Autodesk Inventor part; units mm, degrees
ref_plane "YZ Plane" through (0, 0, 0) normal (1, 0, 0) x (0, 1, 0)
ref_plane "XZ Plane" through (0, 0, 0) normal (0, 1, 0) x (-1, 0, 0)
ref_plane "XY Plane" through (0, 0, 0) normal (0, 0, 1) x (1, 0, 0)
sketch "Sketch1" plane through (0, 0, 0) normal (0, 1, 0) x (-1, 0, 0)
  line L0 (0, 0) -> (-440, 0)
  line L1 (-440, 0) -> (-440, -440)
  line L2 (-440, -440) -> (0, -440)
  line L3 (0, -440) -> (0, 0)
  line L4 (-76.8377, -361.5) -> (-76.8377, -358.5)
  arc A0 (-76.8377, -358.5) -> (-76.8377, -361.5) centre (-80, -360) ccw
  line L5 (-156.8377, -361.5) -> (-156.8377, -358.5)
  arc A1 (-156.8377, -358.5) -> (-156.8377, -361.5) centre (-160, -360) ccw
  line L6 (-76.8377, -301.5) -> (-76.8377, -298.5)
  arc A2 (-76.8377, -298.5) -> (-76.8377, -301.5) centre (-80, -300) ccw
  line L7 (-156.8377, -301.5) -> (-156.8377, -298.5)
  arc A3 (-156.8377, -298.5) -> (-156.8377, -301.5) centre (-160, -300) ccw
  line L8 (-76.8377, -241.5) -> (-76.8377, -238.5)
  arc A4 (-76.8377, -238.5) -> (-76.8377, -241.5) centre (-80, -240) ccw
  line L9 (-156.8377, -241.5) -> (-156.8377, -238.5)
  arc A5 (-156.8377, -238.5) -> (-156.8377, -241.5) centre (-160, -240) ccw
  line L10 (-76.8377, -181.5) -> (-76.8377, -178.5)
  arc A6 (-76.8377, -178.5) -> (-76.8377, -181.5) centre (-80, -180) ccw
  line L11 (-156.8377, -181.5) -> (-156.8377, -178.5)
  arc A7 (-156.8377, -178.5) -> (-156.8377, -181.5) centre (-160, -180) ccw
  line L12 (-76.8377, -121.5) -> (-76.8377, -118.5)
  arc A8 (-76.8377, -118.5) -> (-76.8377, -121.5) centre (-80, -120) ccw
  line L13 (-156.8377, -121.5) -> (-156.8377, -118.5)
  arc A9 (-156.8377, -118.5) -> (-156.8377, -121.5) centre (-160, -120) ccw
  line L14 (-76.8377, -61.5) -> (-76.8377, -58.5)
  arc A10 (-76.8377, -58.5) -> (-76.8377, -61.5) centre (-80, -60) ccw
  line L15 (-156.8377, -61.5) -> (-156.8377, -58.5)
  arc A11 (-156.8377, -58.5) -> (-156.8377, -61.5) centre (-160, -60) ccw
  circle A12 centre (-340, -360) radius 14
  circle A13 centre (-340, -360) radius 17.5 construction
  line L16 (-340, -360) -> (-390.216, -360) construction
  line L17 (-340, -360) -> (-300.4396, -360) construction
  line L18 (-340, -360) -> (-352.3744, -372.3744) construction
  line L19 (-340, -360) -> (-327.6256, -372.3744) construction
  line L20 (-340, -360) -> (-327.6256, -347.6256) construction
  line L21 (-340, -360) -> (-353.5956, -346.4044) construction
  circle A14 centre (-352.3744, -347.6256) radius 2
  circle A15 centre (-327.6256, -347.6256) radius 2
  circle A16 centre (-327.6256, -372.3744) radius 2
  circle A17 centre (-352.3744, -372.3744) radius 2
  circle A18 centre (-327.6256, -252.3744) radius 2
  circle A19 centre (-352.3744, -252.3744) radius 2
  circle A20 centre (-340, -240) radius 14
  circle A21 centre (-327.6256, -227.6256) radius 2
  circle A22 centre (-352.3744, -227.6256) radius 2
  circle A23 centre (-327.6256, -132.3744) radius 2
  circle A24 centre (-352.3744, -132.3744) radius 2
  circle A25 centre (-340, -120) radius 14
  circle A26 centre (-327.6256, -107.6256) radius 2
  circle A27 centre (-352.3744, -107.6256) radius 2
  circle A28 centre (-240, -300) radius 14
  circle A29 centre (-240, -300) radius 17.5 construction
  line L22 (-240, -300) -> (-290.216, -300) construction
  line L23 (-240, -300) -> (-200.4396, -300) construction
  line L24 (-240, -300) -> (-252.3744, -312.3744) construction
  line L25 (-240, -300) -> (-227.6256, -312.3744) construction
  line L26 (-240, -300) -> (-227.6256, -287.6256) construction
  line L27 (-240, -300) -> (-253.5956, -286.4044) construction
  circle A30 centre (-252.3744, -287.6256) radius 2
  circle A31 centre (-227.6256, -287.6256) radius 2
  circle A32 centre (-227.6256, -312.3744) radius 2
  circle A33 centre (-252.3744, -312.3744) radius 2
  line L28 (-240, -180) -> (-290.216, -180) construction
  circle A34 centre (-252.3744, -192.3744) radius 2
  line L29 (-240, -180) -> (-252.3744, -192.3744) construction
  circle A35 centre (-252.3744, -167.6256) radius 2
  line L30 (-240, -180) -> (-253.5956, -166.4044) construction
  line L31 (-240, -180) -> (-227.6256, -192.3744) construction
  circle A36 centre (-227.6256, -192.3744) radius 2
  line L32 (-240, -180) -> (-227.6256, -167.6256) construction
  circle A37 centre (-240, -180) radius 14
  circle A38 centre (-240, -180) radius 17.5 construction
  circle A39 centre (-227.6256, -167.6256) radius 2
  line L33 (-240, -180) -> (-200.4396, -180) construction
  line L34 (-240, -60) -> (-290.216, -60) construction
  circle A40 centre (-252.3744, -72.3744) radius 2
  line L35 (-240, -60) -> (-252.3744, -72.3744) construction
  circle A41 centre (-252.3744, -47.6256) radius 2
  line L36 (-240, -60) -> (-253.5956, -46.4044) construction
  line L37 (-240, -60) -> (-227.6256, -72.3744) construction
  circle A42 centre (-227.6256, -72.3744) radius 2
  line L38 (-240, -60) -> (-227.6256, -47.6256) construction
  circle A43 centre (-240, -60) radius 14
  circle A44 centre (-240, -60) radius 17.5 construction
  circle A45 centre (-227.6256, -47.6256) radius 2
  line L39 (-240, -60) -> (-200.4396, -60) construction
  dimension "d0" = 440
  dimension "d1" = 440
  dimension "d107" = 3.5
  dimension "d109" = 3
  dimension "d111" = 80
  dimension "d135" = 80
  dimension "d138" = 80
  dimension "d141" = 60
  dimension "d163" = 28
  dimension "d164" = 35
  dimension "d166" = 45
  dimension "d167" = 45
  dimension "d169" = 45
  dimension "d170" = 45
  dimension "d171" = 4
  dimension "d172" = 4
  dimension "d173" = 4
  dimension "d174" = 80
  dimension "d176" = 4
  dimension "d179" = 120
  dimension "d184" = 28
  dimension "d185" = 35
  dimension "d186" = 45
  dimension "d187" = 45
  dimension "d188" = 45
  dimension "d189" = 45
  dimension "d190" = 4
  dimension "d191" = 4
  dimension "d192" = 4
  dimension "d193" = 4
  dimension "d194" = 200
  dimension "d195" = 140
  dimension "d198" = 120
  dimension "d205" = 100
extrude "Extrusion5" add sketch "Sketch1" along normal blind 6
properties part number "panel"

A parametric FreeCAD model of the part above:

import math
import FreeCAD as App
import Part
import Sketcher
Q = App.Units.Quantity

doc = App.newDocument("Part")
body = doc.addObject("PartDesign::Body", "Body")

sketch1 = body.newObject("Sketcher::SketchObject", "Sketch")
sketch1.AttachmentSupport = (doc.getObject("XZ_Plane"), [""])
sketch1.MapMode = "FlatFace"
sketch1.addGeometry([
    Part.LineSegment(App.Vector(0, -440, 0), App.Vector(0, 0, 0)),
    Part.LineSegment(App.Vector(0, 0, 0), App.Vector(440, 0, 0)),
    Part.LineSegment(App.Vector(440, 0, 0), App.Vector(440, -440, 0)),
    Part.LineSegment(App.Vector(440, -440, 0), App.Vector(0, -440, 0)),
    Part.Circle(App.Vector(352.4, -372.4, 0), App.Vector(0, 0, 1), 2),
    Part.Circle(App.Vector(340, -360, 0), App.Vector(0, 0, 1), 14),
    Part.Circle(App.Vector(352.4, -347.6, 0), App.Vector(0, 0, 1), 2),
    Part.Circle(App.Vector(327.6, -372.4, 0), App.Vector(0, 0, 1), 2),
    Part.Circle(App.Vector(327.6, -347.6, 0), App.Vector(0, 0, 1), 2),
    Part.Circle(App.Vector(352.4, -252.4, 0), App.Vector(0, 0, 1), 2),
    Part.Circle(App.Vector(340, -240, 0), App.Vector(0, 0, 1), 14),
    Part.Circle(App.Vector(352.4, -227.6, 0), App.Vector(0, 0, 1), 2),
    Part.Circle(App.Vector(252.4, -312.4, 0), App.Vector(0, 0, 1), 2),
    Part.Circle(App.Vector(227.6, -312.4, 0), App.Vector(0, 0, 1), 2),
    Part.Circle(App.Vector(252.4, -287.6, 0), App.Vector(0, 0, 1), 2),
    Part.Circle(App.Vector(240, -300, 0), App.Vector(0, 0, 1), 14),
    Part.Circle(App.Vector(227.6, -287.6, 0), App.Vector(0, 0, 1), 2),
    Part.Circle(App.Vector(327.6, -252.4, 0), App.Vector(0, 0, 1), 2),
    Part.Circle(App.Vector(327.6, -227.6, 0), App.Vector(0, 0, 1), 2),
    Part.LineSegment(App.Vector(156.8, -358.5, 0), App.Vector(156.8, -361.5, 0)),
    Part.ArcOfCircle(Part.Circle(App.Vector(160, -360, 0), App.Vector(0, 0, 1), 3.5), math.radians(-155), math.radians(155)),
    Part.LineSegment(App.Vector(76.8, -358.5, 0), App.Vector(76.8, -361.5, 0)),
    Part.ArcOfCircle(Part.Circle(App.Vector(80, -360, 0), App.Vector(0, 0, 1), 3.5), math.radians(-155), math.radians(155)),
    Part.LineSegment(App.Vector(156.8, -298.5, 0), App.Vector(156.8, -301.5, 0)),
    Part.ArcOfCircle(Part.Circle(App.Vector(160, -300, 0), App.Vector(0, 0, 1), 3.5), math.radians(-155), math.radians(155)),
    Part.LineSegment(App.Vector(156.8, -238.5, 0), App.Vector(156.8, -241.5, 0)),
    Part.ArcOfCircle(Part.Circle(App.Vector(160, -240, 0), App.Vector(0, 0, 1), 3.5), math.radians(-155), math.radians(155)),
    Part.LineSegment(App.Vector(76.8, -298.5, 0), App.Vector(76.8, -301.5, 0)),
    Part.ArcOfCircle(Part.Circle(App.Vector(80, -300, 0), App.Vector(0, 0, 1), 3.5), math.radians(-155), math.radians(155)),
    Part.LineSegment(App.Vector(76.8, -238.5, 0), App.Vector(76.8, -241.5, 0)),
    Part.ArcOfCircle(Part.Circle(App.Vector(80, -240, 0), App.Vector(0, 0, 1), 3.5), math.radians(-155), math.radians(155)),
    Part.Circle(App.Vector(352.4, -132.4, 0), App.Vector(0, 0, 1), 2),
    Part.Circle(App.Vector(340, -120, 0), App.Vector(0, 0, 1), 14),
    Part.Circle(App.Vector(252.4, -192.4, 0), App.Vector(0, 0, 1), 2),
    Part.Circle(App.Vector(252.4, -167.6, 0), App.Vector(0, 0, 1), 2),
    Part.Circle(App.Vector(240, -180, 0), App.Vector(0, 0, 1), 14),
    Part.Circle(App.Vector(227.6, -192.4, 0), App.Vector(0, 0, 1), 2),
    Part.Circle(App.Vector(227.6, -167.6, 0), App.Vector(0, 0, 1), 2),
    Part.Circle(App.Vector(327.6, -132.4, 0), App.Vector(0, 0, 1), 2),
    Part.Circle(App.Vector(352.4, -107.6, 0), App.Vector(0, 0, 1), 2),
    Part.Circle(App.Vector(327.6, -107.6, 0), App.Vector(0, 0, 1), 2),
    Part.Circle(App.Vector(252.4, -72.4, 0), App.Vector(0, 0, 1), 2),
    Part.Circle(App.Vector(227.6, -72.4, 0), App.Vector(0, 0, 1), 2),
    Part.Circle(App.Vector(240, -60, 0), App.Vector(0, 0, 1), 14),
    Part.Circle(App.Vector(252.4, -47.6, 0), App.Vector(0, 0, 1), 2),
    Part.Circle(App.Vector(227.6, -47.6, 0), App.Vector(0, 0, 1), 2),
    Part.LineSegment(App.Vector(156.8, -178.5, 0), App.Vector(156.8, -181.5, 0)),
    Part.ArcOfCircle(Part.Circle(App.Vector(160, -180, 0), App.Vector(0, 0, 1), 3.5), math.radians(-155), math.radians(155)),
    Part.LineSegment(App.Vector(156.8, -118.5, 0), App.Vector(156.8, -121.5, 0)),
    Part.ArcOfCircle(Part.Circle(App.Vector(160, -120, 0), App.Vector(0, 0, 1), 3.5), math.radians(-155), math.radians(155)),
    Part.LineSegment(App.Vector(76.8, -178.5, 0), App.Vector(76.8, -181.5, 0)),
    Part.ArcOfCircle(Part.Circle(App.Vector(80, -180, 0), App.Vector(0, 0, 1), 3.5), math.radians(-155), math.radians(155)),
    Part.LineSegment(App.Vector(76.8, -118.5, 0), App.Vector(76.8, -121.5, 0)),
    Part.ArcOfCircle(Part.Circle(App.Vector(80, -120, 0), App.Vector(0, 0, 1), 3.5), math.radians(-155), math.radians(155)),
    Part.LineSegment(App.Vector(156.8, -58.5, 0), App.Vector(156.8, -61.5, 0)),
    Part.ArcOfCircle(Part.Circle(App.Vector(160, -60, 0), App.Vector(0, 0, 1), 3.5), math.radians(-155), math.radians(155)),
    Part.LineSegment(App.Vector(76.8, -58.5, 0), App.Vector(76.8, -61.5, 0)),
    Part.ArcOfCircle(Part.Circle(App.Vector(80, -60, 0), App.Vector(0, 0, 1), 3.5), math.radians(-155), math.radians(155)),
], False)
sketch1.addConstraint([
    Sketcher.Constraint("Coincident", 0, 2, 1, 1),
    Sketcher.Constraint("Coincident", 1, 2, 2, 1),
    Sketcher.Constraint("Coincident", 2, 2, 3, 1),
    Sketcher.Constraint("Coincident", 3, 2, 0, 1),
    Sketcher.Constraint("Coincident", 19, 1, 20, 2),
    Sketcher.Constraint("Coincident", 20, 1, 19, 2),
    Sketcher.Constraint("Coincident", 21, 1, 22, 2),
    Sketcher.Constraint("Coincident", 22, 1, 21, 2),
    Sketcher.Constraint("Coincident", 23, 1, 24, 2),
    Sketcher.Constraint("Coincident", 24, 1, 23, 2),
    Sketcher.Constraint("Coincident", 25, 1, 26, 2),
    Sketcher.Constraint("Coincident", 26, 1, 25, 2),
    Sketcher.Constraint("Coincident", 27, 1, 28, 2),
    Sketcher.Constraint("Coincident", 28, 1, 27, 2),
    Sketcher.Constraint("Coincident", 29, 1, 30, 2),
    Sketcher.Constraint("Coincident", 30, 1, 29, 2),
    Sketcher.Constraint("Coincident", 46, 1, 47, 2),
    Sketcher.Constraint("Coincident", 47, 1, 46, 2),
    Sketcher.Constraint("Coincident", 48, 1, 49, 2),
    Sketcher.Constraint("Coincident", 49, 1, 48, 2),
    Sketcher.Constraint("Coincident", 50, 1, 51, 2),
    Sketcher.Constraint("Coincident", 51, 1, 50, 2),
    Sketcher.Constraint("Coincident", 52, 1, 53, 2),
    Sketcher.Constraint("Coincident", 53, 1, 52, 2),
    Sketcher.Constraint("Coincident", 54, 1, 55, 2),
    Sketcher.Constraint("Coincident", 55, 1, 54, 2),
    Sketcher.Constraint("Coincident", 56, 1, 57, 2),
    Sketcher.Constraint("Coincident", 57, 1, 56, 2),
    Sketcher.Constraint("Vertical", 0),
    Sketcher.Constraint("Horizontal", 1),
    Sketcher.Constraint("Vertical", 2),
    Sketcher.Constraint("Horizontal", 3),
    Sketcher.Constraint("Vertical", 19),
    Sketcher.Constraint("Vertical", 21),
    Sketcher.Constraint("Vertical", 23),
    Sketcher.Constraint("Vertical", 25),
    Sketcher.Constraint("Vertical", 27),
    Sketcher.Constraint("Vertical", 29),
    Sketcher.Constraint("Vertical", 46),
    Sketcher.Constraint("Vertical", 48),
    Sketcher.Constraint("Vertical", 50),
    Sketcher.Constraint("Vertical", 52),
    Sketcher.Constraint("Vertical", 54),
    Sketcher.Constraint("Vertical", 56),
    Sketcher.Constraint("Coincident", 0, 2, -1, 1),
    Sketcher.Constraint("Equal", 4, 6),
    Sketcher.Constraint("Equal", 6, 7),
    Sketcher.Constraint("Equal", 7, 8),
    Sketcher.Constraint("Equal", 8, 9),
    Sketcher.Constraint("Equal", 5, 10),
    Sketcher.Constraint("Equal", 9, 11),
    Sketcher.Constraint("Equal", 11, 12),
    Sketcher.Constraint("Equal", 12, 13),
    Sketcher.Constraint("Equal", 13, 14),
    Sketcher.Constraint("Equal", 10, 15),
    Sketcher.Constraint("Equal", 14, 16),
    Sketcher.Constraint("Equal", 16, 17),
    Sketcher.Constraint("Equal", 17, 18),
    Sketcher.Constraint("Equal", 20, 22),
    Sketcher.Constraint("Equal", 22, 24),
    Sketcher.Constraint("Equal", 24, 26),
    Sketcher.Constraint("Equal", 26, 28),
    Sketcher.Constraint("Equal", 28, 30),
    Sketcher.Constraint("Equal", 18, 31),
    Sketcher.Constraint("Equal", 15, 32),
    Sketcher.Constraint("Equal", 31, 33),
    Sketcher.Constraint("Equal", 33, 34),
    Sketcher.Constraint("Equal", 32, 35),
    Sketcher.Constraint("Equal", 34, 36),
    Sketcher.Constraint("Equal", 36, 37),
    Sketcher.Constraint("Equal", 37, 38),
    Sketcher.Constraint("Equal", 38, 39),
    Sketcher.Constraint("Equal", 39, 40),
    Sketcher.Constraint("Equal", 40, 41),
    Sketcher.Constraint("Equal", 41, 42),
    Sketcher.Constraint("Equal", 35, 43),
    Sketcher.Constraint("Equal", 42, 44),
    Sketcher.Constraint("Equal", 44, 45),
    Sketcher.Constraint("Equal", 30, 47),
    Sketcher.Constraint("Equal", 47, 49),
    Sketcher.Constraint("Equal", 49, 51),
    Sketcher.Constraint("Equal", 51, 53),
    Sketcher.Constraint("Equal", 53, 55),
    Sketcher.Constraint("Equal", 55, 57),
    Sketcher.Constraint("Horizontal", 4, 3, 7, 3),
    Sketcher.Constraint("Horizontal", 6, 3, 8, 3),
    Sketcher.Constraint("Horizontal", 12, 3, 13, 3),
    Sketcher.Constraint("Horizontal", 14, 3, 16, 3),
    Sketcher.Constraint("Horizontal", 9, 3, 17, 3),
    Sketcher.Constraint("Horizontal", 11, 3, 18, 3),
    Sketcher.Constraint("Horizontal", 5, 3, 20, 3),
    Sketcher.Constraint("Horizontal", 20, 3, 22, 3),
    Sketcher.Constraint("Horizontal", 15, 3, 24, 3),
    Sketcher.Constraint("Horizontal", 10, 3, 26, 3),
    Sketcher.Constraint("Horizontal", 24, 3, 28, 3),
    Sketcher.Constraint("Horizontal", 26, 3, 30, 3),
    Sketcher.Constraint("Horizontal", 33, 3, 36, 3),
    Sketcher.Constraint("Horizontal", 34, 3, 37, 3),
    Sketcher.Constraint("Horizontal", 31, 3, 38, 3),
    Sketcher.Constraint("Horizontal", 39, 3, 40, 3),
    Sketcher.Constraint("Horizontal", 41, 3, 42, 3),
    Sketcher.Constraint("Horizontal", 44, 3, 45, 3),
    Sketcher.Constraint("Horizontal", 35, 3, 47, 3),
    Sketcher.Constraint("Horizontal", 32, 3, 49, 3),
    Sketcher.Constraint("Horizontal", 47, 3, 51, 3),
    Sketcher.Constraint("Horizontal", 49, 3, 53, 3),
    Sketcher.Constraint("Horizontal", 43, 3, 55, 3),
    Sketcher.Constraint("Horizontal", 55, 3, 57, 3),
    Sketcher.Constraint("Horizontal", 19, 1, 21, 1),
    Sketcher.Constraint("Horizontal", 23, 1, 27, 1),
    Sketcher.Constraint("Horizontal", 25, 1, 29, 1),
    Sketcher.Constraint("Horizontal", 46, 1, 50, 1),
    Sketcher.Constraint("Horizontal", 48, 1, 52, 1),
    Sketcher.Constraint("Horizontal", 54, 1, 56, 1),
    Sketcher.Constraint("Vertical", 4, 3, 6, 3),
    Sketcher.Constraint("Vertical", 7, 3, 8, 3),
    Sketcher.Constraint("Vertical", 6, 3, 9, 3),
    Sketcher.Constraint("Vertical", 5, 3, 10, 3),
    Sketcher.Constraint("Vertical", 9, 3, 11, 3),
    Sketcher.Constraint("Vertical", 12, 3, 14, 3),
    Sketcher.Constraint("Vertical", 13, 3, 16, 3),
    Sketcher.Constraint("Vertical", 8, 3, 17, 3),
    Sketcher.Constraint("Vertical", 17, 3, 18, 3),
    Sketcher.Constraint("Vertical", 20, 3, 24, 3),
    Sketcher.Constraint("Vertical", 24, 3, 26, 3),
    Sketcher.Constraint("Vertical", 22, 3, 28, 3),
    Sketcher.Constraint("Vertical", 28, 3, 30, 3),
    Sketcher.Constraint("Vertical", 11, 3, 31, 3),
    Sketcher.Constraint("Vertical", 10, 3, 32, 3),
    Sketcher.Constraint("Vertical", 14, 3, 33, 3),
    Sketcher.Constraint("Vertical", 33, 3, 34, 3),
    Sketcher.Constraint("Vertical", 15, 3, 35, 3),
    Sketcher.Constraint("Vertical", 16, 3, 36, 3),
    Sketcher.Constraint("Vertical", 36, 3, 37, 3),
    Sketcher.Constraint("Vertical", 18, 3, 38, 3),
    Sketcher.Constraint("Vertical", 31, 3, 39, 3),
    Sketcher.Constraint("Vertical", 38, 3, 40, 3),
    Sketcher.Constraint("Vertical", 34, 3, 41, 3),
    Sketcher.Constraint("Vertical", 37, 3, 42, 3),
    Sketcher.Constraint("Vertical", 35, 3, 43, 3),
    Sketcher.Constraint("Vertical", 41, 3, 44, 3),
    Sketcher.Constraint("Vertical", 42, 3, 45, 3),
    Sketcher.Constraint("Vertical", 26, 3, 47, 3),
    Sketcher.Constraint("Vertical", 47, 3, 49, 3),
    Sketcher.Constraint("Vertical", 30, 3, 51, 3),
    Sketcher.Constraint("Vertical", 51, 3, 53, 3),
    Sketcher.Constraint("Vertical", 49, 3, 55, 3),
    Sketcher.Constraint("Vertical", 53, 3, 57, 3),
    Sketcher.Constraint("Vertical", 20, 1, 23, 1),
    Sketcher.Constraint("Vertical", 24, 1, 25, 1),
    Sketcher.Constraint("Vertical", 26, 1, 46, 1),
    Sketcher.Constraint("Vertical", 47, 1, 48, 1),
    Sketcher.Constraint("Vertical", 49, 1, 54, 1),
    Sketcher.Constraint("Equal", 3, 0),
    Sketcher.Constraint("Diameter", 4, Q("4 mm")),
    Sketcher.Constraint("Diameter", 5, Q("28 mm")),
    Sketcher.Constraint("Radius", 20, Q("3.5 mm")),
    Sketcher.Constraint("DistanceX", 1, 1, 1, 2, Q("440 mm")),
    Sketcher.Constraint("DistanceY", 19, 2, 19, 1, Q("3 mm")),
    Sketcher.Constraint("DistanceX", -1, 1, 22, 3, Q("80 mm")),
    Sketcher.Constraint("DistanceY", 32, 3, -1, 1, Q("120 mm")),
    Sketcher.Constraint("DistanceY", 43, 3, -1, 1, Q("60 mm")),
    Sketcher.Constraint("DistanceX", -1, 1, 5, 3, Q("340 mm")),
    Sketcher.Constraint("DistanceY", 5, 3, -1, 1, Q("360 mm")),
    Sketcher.Constraint("DistanceY", 10, 3, -1, 1, Q("240 mm")),
    Sketcher.Constraint("DistanceX", -1, 1, 15, 3, Q("240 mm")),
    Sketcher.Constraint("DistanceY", 15, 3, -1, 1, Q("300 mm")),
    Sketcher.Constraint("DistanceX", -1, 1, 20, 3, Q("160 mm")),
    Sketcher.Constraint("DistanceY", 35, 3, -1, 1, Q("180 mm")),
    Sketcher.Constraint("DistanceX", -1, 1, 4, 3, Q("352.3744 mm")),
    Sketcher.Constraint("DistanceY", 4, 3, -1, 1, Q("372.3744 mm")),
    Sketcher.Constraint("DistanceY", 6, 3, -1, 1, Q("347.6256 mm")),
    Sketcher.Constraint("DistanceX", -1, 1, 7, 3, Q("327.6256 mm")),
    Sketcher.Constraint("DistanceY", 9, 3, -1, 1, Q("252.3744 mm")),
    Sketcher.Constraint("DistanceY", 11, 3, -1, 1, Q("227.6256 mm")),
    Sketcher.Constraint("DistanceX", -1, 1, 12, 3, Q("252.3744 mm")),
    Sketcher.Constraint("DistanceY", 12, 3, -1, 1, Q("312.3744 mm")),
    Sketcher.Constraint("DistanceX", -1, 1, 13, 3, Q("227.6256 mm")),
    Sketcher.Constraint("DistanceY", 14, 3, -1, 1, Q("287.6256 mm")),
    Sketcher.Constraint("DistanceY", 31, 3, -1, 1, Q("132.3744 mm")),
    Sketcher.Constraint("DistanceY", 33, 3, -1, 1, Q("192.3744 mm")),
    Sketcher.Constraint("DistanceY", 34, 3, -1, 1, Q("167.6256 mm")),
    Sketcher.Constraint("DistanceY", 39, 3, -1, 1, Q("107.6256 mm")),
    Sketcher.Constraint("DistanceY", 41, 3, -1, 1, Q("72.3744 mm")),
    Sketcher.Constraint("DistanceY", 44, 3, -1, 1, Q("47.6256 mm")),
])
pad1 = body.newObject("PartDesign::Pad", "Pad")
pad1.Profile = sketch1
pad1.Length = 6
pad1.Reversed = True

doc.recompute()
